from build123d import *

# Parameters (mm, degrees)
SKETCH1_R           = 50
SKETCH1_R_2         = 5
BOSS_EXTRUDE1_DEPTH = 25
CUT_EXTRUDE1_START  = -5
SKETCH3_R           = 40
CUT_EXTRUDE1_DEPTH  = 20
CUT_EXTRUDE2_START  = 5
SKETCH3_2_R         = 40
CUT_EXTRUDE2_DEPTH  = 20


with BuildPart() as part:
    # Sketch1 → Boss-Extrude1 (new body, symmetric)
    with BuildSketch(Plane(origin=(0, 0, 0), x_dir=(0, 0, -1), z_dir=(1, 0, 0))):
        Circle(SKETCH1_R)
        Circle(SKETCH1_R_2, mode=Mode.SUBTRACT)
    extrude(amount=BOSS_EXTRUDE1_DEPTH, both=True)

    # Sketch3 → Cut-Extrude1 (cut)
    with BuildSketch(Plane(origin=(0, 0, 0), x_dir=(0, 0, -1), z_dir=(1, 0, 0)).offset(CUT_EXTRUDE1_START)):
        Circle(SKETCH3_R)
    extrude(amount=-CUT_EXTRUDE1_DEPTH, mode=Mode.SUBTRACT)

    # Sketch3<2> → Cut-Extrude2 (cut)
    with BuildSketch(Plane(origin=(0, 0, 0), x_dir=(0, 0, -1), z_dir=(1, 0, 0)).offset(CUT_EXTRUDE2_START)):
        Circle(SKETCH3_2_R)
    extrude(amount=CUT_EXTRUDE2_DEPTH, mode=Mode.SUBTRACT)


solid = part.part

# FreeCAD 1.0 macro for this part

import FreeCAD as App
import Part
import Sketcher
Q = App.Units.Quantity

doc = App.newDocument("Part")
params = doc.addObject("Spreadsheet::Sheet", "Params")
for row, (alias, value) in enumerate([
    ("sketch1_diameter", "100 mm"),
    ("sketch1_diameter2", "10 mm"),
    ("pad1_length", "50 mm"),
    ("sketch2_diameter", "80 mm"),
    ("pocket1_length", "20 mm"),
    ("sketch3_diameter", "80 mm"),
    ("pocket2_length", "20 mm"),
], start=1):
    params.set(f"A{row}", alias)
    params.set(f"B{row}", "=" + value)
    params.setAlias(f"B{row}", alias)

body = doc.addObject("PartDesign::Body", "Body")

# Sketch on YZ plane
sketch1 = body.newObject("Sketcher::SketchObject", "Sketch")
sketch1.AttachmentSupport = (doc.getObject("YZ_Plane"), [""])
sketch1.MapMode = "FlatFace"
sketch1.addGeometry(Part.Circle(App.Vector(0, 0, 0), App.Vector(0, 0, 1), 50), False)
sketch1.addGeometry(Part.Circle(App.Vector(0, 0, 0), App.Vector(0, 0, 1), 5), False)
sketch1.addConstraint(Sketcher.Constraint("Coincident", 0, 3, -1, 1))
sketch1.addConstraint(Sketcher.Constraint("Coincident", 1, 3, -1, 1))
sketch1.addConstraint(Sketcher.Constraint("Diameter", 0, Q("100 mm")))
sketch1.addConstraint(Sketcher.Constraint("Diameter", 1, Q("10 mm")))
sketch1.setExpression("Constraints[2]", "Params.sketch1_diameter")
sketch1.setExpression("Constraints[3]", "Params.sketch1_diameter2")
pad1 = body.newObject("PartDesign::Pad", "Pad")
pad1.Profile = sketch1
pad1.setExpression("Length", "Params.pad1_length")
pad1.Midplane = True

# Sketch on YZ plane
sketch2 = body.newObject("Sketcher::SketchObject", "Sketch001")
sketch2.AttachmentSupport = (doc.getObject("YZ_Plane"), [""])
sketch2.MapMode = "FlatFace"
sketch2.AttachmentOffset = App.Placement(App.Vector(0, 0, -5), App.Rotation())
sketch2.addGeometry(Part.Circle(App.Vector(0, 0, 0), App.Vector(0, 0, 1), 40), False)
sketch2.addConstraint(Sketcher.Constraint("Coincident", 0, 3, -1, 1))
sketch2.addConstraint(Sketcher.Constraint("Diameter", 0, Q("80 mm")))
sketch2.setExpression("Constraints[1]", "Params.sketch2_diameter")
pocket1 = body.newObject("PartDesign::Pocket", "Pocket")
pocket1.Profile = sketch2
pocket1.setExpression("Length", "Params.pocket1_length")

# Sketch on YZ plane
sketch3 = body.newObject("Sketcher::SketchObject", "Sketch002")
sketch3.AttachmentSupport = (doc.getObject("YZ_Plane"), [""])
sketch3.MapMode = "FlatFace"
sketch3.AttachmentOffset = App.Placement(App.Vector(0, 0, 5), App.Rotation())
sketch3.addGeometry(Part.Circle(App.Vector(0, 0, 0), App.Vector(0, 0, 1), 40), False)
sketch3.addConstraint(Sketcher.Constraint("Coincident", 0, 3, -1, 1))
sketch3.addConstraint(Sketcher.Constraint("Diameter", 0, Q("80 mm")))
sketch3.setExpression("Constraints[1]", "Params.sketch3_diameter")
pocket2 = body.newObject("PartDesign::Pocket", "Pocket001")
pocket2.Profile = sketch3
pocket2.setExpression("Length", "Params.pocket2_length")
pocket2.Reversed = True

doc.recompute()
